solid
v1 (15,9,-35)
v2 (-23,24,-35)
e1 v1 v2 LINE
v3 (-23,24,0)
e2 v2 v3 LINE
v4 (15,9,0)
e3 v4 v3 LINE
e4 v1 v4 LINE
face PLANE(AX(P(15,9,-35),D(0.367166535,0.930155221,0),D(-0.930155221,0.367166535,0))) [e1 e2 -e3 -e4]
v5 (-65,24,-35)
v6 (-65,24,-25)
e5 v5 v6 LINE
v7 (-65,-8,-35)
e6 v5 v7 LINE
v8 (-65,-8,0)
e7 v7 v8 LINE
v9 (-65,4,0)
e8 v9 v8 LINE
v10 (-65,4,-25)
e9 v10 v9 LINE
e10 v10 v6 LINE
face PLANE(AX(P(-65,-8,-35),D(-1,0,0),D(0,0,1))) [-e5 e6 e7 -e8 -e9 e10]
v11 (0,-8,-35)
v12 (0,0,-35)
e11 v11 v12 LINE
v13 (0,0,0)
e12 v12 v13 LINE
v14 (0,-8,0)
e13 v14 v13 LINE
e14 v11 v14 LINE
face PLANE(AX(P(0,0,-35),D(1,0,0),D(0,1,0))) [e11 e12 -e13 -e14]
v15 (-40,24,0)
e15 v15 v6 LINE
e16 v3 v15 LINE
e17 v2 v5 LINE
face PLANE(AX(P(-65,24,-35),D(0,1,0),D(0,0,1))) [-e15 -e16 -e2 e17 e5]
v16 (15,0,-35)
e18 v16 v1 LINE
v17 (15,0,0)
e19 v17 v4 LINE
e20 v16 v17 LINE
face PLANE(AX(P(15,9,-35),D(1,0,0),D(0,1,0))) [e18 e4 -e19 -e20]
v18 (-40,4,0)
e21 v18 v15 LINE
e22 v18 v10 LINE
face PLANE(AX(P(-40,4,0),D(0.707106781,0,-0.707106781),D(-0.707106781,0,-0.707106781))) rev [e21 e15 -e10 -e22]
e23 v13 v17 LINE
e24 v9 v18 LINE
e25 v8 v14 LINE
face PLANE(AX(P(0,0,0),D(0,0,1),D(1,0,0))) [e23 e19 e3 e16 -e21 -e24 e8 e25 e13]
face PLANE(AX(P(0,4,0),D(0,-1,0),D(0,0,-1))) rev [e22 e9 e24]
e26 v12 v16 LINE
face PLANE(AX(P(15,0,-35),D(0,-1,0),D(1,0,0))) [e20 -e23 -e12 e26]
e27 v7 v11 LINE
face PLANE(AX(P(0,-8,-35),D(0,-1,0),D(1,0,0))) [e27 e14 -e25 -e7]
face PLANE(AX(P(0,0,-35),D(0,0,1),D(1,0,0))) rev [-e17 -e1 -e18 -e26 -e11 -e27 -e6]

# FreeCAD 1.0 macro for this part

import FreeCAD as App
import Part
import Sketcher
from FreeCAD import Vector


def add_polygon(sketch, points):
    """Adds a closed chain of lines whose ends are joined by coincident constraints."""
    first, n = sketch.GeometryCount, len(points)
    for a, b in zip(points, points[1:] + points[:1]):
        sketch.addGeometry(Part.LineSegment(App.Vector(*a, 0), App.Vector(*b, 0)), False)
    for i in range(n):
        sketch.addConstraint(Sketcher.Constraint("Coincident", first + i, 2, first + (i + 1) % n, 1))

doc = App.newDocument("Part")
params = doc.addObject("Spreadsheet::Sheet", "Params")
for row, (alias, value) in enumerate([
    ("sketch1_width", "15 mm"),
    ("sketch1_width2", "42 mm"),
    ("sketch1_width3", "65 mm"),
    ("sketch1_height", "8 mm"),
    ("sketch1_height2", "9 mm"),
    ("pad1_length", "35 mm"),
    ("sketch2_width", "25 mm"),
    ("pocket1_length", "20 mm"),
], start=1):
    params.set(f"A{row}", alias)
    params.set(f"B{row}", "=" + value)
    params.setAlias(f"B{row}", alias)

body = doc.addObject("PartDesign::Body", "Body")

# Sketch on XY plane
sketch1 = body.newObject("Sketcher::SketchObject", "Sketch")
sketch1.AttachmentSupport = (doc.getObject("XY_Plane"), [""])
sketch1.MapMode = "FlatFace"
add_polygon(sketch1, [(0, -8), (0, 0), (15, 0), (15, 9), (-23, 24), (-65, 24), (-65, -8)])  # lines 0-6
sketch1.addConstraint(Sketcher.Constraint("Vertical", 0))
sketch1.addConstraint(Sketcher.Constraint("Horizontal", 1))
sketch1.addConstraint(Sketcher.Constraint("Vertical", 2))
sketch1.addConstraint(Sketcher.Constraint("Horizontal", 4))
sketch1.addConstraint(Sketcher.Constraint("Vertical", 5))
sketch1.addConstraint(Sketcher.Constraint("Horizontal", 6))
sketch1.addConstraint(Sketcher.Constraint("Coincident", 0, 2, -1, 1))
sketch1.addConstraint(Sketcher.Constraint("DistanceX", 1, 1, 1, 2, 15.0))
sketch1.addConstraint(Sketcher.Constraint("DistanceX", 4, 2, 4, 1, 42.0))
sketch1.addConstraint(Sketcher.Constraint("DistanceX", 6, 1, 6, 2, 65.0))
sketch1.addConstraint(Sketcher.Constraint("DistanceY", 0, 1, 0, 2, 8.0))
sketch1.addConstraint(Sketcher.Constraint("DistanceY", 2, 1, 2, 2, 9.0))
sketch1.addConstraint(Sketcher.Constraint("DistanceY", 5, 2, 5, 1, 32.0))
sketch1.setExpression("Constraints[14]", "Params.sketch1_width")
sketch1.setExpression("Constraints[15]", "Params.sketch1_width2")
sketch1.setExpression("Constraints[16]", "Params.sketch1_width3")
sketch1.setExpression("Constraints[17]", "Params.sketch1_height")
sketch1.setExpression("Constraints[18]", "Params.sketch1_height2")
pad1 = body.newObject("PartDesign::Pad", "Pad")
pad1.Profile = sketch1
pad1.setExpression("Length", "Params.pad1_length")
pad1.Reversed = True

# Sketch on XZ plane
sketch2 = body.newObject("Sketcher::SketchObject", "Sketch001")
sketch2.AttachmentSupport = (doc.getObject("XZ_Plane"), [""])
sketch2.MapMode = "FlatFace"
sketch2.AttachmentOffset = App.Placement(Vector(0, 0, -24), App.Rotation())
add_polygon(sketch2, [(-40, 0), (-65, -25), (-65, 0)])  # lines 0-2
sketch2.addConstraint(Sketcher.Constraint("Vertical", 1))
sketch2.addConstraint(Sketcher.Constraint("Horizontal", 2))
sketch2.addConstraint(Sketcher.Constraint("PointOnObject", 1, 2, -1))
sketch2.addConstraint(Sketcher.Constraint("Equal", 2, 1))
sketch2.addConstraint(Sketcher.Constraint("DistanceX", 2, 1, 2, 2, 25.0))
sketch2.addConstraint(Sketcher.Constraint("DistanceX", 0, 2, -1, 1, 65.0))
sketch2.setExpression("Constraints[7]", "Params.sketch2_width")
pocket1 = body.newObject("PartDesign::Pocket", "Pocket")
pocket1.Profile = sketch2
pocket1.setExpression("Length", "Params.pocket1_length")
pocket1.Reversed = True

doc.recompute()
